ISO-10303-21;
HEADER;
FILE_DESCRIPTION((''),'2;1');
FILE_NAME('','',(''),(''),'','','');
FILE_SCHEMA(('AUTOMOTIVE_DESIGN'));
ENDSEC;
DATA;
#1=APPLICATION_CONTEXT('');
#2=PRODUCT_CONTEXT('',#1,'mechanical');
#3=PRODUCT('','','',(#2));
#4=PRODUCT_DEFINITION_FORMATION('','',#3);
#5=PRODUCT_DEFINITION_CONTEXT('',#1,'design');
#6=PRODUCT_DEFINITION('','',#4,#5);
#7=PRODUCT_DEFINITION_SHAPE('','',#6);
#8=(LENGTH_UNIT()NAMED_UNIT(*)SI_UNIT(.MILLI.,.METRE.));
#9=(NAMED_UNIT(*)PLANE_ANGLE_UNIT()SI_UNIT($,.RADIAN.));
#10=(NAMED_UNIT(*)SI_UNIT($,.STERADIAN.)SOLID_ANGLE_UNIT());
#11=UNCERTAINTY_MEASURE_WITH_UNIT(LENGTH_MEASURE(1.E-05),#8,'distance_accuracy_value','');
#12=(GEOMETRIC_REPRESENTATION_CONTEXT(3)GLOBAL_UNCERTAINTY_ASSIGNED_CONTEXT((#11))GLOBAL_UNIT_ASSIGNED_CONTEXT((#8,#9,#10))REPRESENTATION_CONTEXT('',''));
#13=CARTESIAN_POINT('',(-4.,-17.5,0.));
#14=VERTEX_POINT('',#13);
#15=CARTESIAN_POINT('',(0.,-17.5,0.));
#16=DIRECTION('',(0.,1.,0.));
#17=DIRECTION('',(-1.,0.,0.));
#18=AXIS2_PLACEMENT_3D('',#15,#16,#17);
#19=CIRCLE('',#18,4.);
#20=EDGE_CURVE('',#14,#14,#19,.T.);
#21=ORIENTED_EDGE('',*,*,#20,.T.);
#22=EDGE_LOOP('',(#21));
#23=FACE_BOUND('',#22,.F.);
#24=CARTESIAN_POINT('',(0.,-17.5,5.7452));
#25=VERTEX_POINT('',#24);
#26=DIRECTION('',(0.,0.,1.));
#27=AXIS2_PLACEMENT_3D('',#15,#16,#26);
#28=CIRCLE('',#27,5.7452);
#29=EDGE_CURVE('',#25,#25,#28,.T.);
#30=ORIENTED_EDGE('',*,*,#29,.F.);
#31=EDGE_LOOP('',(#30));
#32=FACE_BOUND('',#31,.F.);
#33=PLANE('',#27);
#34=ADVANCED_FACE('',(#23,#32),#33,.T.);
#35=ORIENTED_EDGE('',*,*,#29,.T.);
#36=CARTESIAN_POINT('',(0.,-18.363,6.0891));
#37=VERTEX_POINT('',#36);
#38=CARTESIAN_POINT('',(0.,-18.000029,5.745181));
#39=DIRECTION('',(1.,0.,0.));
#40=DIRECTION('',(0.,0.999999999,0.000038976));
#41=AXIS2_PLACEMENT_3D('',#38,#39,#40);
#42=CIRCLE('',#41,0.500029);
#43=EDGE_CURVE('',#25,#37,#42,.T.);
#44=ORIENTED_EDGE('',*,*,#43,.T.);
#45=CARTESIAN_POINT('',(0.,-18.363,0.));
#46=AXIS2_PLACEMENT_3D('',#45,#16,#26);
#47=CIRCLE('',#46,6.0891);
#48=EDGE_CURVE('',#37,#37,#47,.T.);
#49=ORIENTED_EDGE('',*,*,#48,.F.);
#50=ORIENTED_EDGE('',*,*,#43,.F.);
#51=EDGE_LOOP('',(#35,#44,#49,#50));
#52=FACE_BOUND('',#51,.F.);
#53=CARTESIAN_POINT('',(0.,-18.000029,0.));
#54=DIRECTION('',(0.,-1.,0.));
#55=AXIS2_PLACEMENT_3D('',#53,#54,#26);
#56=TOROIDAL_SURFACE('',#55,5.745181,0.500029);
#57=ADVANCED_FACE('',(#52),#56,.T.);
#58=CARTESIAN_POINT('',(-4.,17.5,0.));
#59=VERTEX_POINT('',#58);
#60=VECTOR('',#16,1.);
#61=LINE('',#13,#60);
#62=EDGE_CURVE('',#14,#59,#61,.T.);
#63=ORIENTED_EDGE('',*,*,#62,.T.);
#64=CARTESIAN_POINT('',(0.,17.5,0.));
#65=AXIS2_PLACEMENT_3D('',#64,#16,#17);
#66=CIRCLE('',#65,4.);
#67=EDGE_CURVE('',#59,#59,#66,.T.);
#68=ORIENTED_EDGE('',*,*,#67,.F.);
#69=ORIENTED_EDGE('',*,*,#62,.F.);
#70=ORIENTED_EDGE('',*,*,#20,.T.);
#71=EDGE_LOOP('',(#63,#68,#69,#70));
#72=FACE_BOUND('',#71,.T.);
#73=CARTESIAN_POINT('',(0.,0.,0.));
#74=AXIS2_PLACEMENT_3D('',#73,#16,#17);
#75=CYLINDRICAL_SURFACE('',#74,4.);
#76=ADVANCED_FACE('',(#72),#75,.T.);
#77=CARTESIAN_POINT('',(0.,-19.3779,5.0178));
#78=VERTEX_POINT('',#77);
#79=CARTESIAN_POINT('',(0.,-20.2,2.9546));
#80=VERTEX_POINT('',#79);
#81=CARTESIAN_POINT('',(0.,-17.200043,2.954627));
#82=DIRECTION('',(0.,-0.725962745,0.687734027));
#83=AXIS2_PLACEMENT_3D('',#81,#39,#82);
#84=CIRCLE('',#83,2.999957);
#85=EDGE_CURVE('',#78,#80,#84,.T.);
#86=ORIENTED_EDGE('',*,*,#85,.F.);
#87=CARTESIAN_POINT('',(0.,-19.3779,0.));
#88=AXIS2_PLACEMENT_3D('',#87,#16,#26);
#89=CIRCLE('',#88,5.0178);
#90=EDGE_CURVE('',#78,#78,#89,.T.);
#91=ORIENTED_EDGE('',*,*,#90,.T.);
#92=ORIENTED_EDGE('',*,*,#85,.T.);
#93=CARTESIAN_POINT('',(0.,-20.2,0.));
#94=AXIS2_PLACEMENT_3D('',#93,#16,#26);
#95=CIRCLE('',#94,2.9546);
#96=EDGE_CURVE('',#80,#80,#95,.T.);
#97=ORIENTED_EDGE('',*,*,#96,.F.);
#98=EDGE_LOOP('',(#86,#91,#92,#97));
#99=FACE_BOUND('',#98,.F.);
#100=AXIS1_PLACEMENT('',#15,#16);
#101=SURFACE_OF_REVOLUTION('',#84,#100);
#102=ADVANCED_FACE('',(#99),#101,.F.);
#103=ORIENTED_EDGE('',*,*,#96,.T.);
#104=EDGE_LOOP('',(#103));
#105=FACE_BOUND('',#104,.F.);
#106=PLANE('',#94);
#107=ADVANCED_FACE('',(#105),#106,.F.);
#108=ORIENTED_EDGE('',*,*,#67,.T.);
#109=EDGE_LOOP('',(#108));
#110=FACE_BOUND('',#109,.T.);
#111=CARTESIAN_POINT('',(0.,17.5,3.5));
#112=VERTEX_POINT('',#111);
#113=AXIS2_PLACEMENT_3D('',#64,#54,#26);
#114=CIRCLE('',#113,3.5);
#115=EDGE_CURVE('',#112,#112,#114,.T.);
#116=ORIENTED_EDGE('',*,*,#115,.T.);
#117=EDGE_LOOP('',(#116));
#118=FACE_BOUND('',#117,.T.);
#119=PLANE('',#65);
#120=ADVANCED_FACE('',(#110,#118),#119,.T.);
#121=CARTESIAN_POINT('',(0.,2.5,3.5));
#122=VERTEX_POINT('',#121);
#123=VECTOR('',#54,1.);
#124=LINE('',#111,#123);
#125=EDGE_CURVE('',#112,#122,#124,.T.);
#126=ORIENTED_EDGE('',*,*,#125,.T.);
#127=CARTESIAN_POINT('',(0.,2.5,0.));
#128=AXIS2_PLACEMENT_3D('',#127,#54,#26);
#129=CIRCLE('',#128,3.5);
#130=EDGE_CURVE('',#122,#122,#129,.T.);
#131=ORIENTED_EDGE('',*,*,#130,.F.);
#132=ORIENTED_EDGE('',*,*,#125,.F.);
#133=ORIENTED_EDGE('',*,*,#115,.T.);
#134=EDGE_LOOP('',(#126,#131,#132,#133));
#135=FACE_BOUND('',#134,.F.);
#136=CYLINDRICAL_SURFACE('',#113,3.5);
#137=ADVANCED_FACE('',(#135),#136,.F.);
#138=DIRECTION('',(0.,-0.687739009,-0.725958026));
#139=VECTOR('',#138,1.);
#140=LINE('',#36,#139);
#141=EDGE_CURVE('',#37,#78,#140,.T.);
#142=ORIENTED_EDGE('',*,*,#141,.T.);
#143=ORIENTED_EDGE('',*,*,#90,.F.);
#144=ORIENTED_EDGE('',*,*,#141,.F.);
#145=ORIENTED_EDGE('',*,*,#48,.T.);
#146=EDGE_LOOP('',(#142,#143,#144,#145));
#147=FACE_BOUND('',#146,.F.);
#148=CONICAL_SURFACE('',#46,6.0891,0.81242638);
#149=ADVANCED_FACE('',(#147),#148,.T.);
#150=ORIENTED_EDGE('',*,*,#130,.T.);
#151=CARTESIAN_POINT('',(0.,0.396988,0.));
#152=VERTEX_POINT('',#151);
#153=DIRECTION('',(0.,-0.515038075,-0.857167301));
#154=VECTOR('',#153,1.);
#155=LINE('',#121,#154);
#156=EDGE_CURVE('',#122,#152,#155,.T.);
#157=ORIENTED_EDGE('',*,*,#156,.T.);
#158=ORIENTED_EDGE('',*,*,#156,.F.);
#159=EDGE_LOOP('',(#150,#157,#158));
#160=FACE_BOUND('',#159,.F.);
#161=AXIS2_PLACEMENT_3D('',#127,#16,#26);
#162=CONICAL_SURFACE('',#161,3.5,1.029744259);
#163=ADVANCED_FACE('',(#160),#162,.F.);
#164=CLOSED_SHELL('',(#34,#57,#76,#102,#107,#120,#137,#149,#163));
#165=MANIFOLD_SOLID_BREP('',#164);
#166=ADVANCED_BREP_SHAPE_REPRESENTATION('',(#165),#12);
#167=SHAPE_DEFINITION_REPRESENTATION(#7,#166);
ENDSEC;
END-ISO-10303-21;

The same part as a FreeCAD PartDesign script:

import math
import FreeCAD as App
import Part
import Sketcher

V = App.Vector
Q = App.Units.Quantity

doc = App.newDocument("Part")
body = doc.addObject("PartDesign::Body", "Body")

# Sketch on XZ plane
sketch1 = body.newObject("Sketcher::SketchObject", "Sketch")
sketch1.AttachmentSupport = (doc.getObject("XZ_Plane"), [""])
sketch1.MapMode = "FlatFace"
sketch1.addGeometry(Part.Circle(V(0, 0, 0), V(0, 0, 1), 4), False)
sketch1.addConstraint([
    Sketcher.Constraint("Coincident", 0, 3, -1, 1),
    Sketcher.Constraint("Diameter", 0, Q("8 mm")),
])
pad1 = body.newObject("PartDesign::Pad", "Pad")
pad1.Profile = sketch1
pad1.Length = 35
pad1.Midplane = True

# Sketch on YZ plane
sketch2 = body.newObject("Sketcher::SketchObject", "Sketch001")
sketch2.AttachmentSupport = (doc.getObject("YZ_Plane"), [""])
sketch2.MapMode = "FlatFace"
sketch2.addGeometry([
    Part.LineSegment(V(-20.2, 0, 0), V(-17.5, 0, 0)),  # 0
    Part.LineSegment(V(-17.5, 0, 0), V(-17.5, 5.7, 0)),  # 1
    Part.ArcOfCircle(Part.Circle(V(-18, 5.7, 0), V(0, 0, 1), 0.5), math.radians(0), math.radians(137)),  # 2
    Part.LineSegment(V(-18.4, 6.1, 0), V(-19.4, 5, 0)),  # 3
    Part.ArcOfCircle(Part.Circle(V(-17.2, 3, 0), V(0, 0, 1), 3), math.radians(137), math.radians(180)),  # 4
    Part.LineSegment(V(-20.2, 3, 0), V(-20.2, 0, 0)),  # 5
], False)
sketch2.addConstraint([
    Sketcher.Constraint("Coincident", 0, 2, 1, 1),
    Sketcher.Constraint("Tangent", 1, 2, 2, 1),
    Sketcher.Constraint("Tangent", 2, 2, 3, 1),
    Sketcher.Constraint("Tangent", 3, 2, 4, 1),
    Sketcher.Constraint("Tangent", 4, 2, 5, 1),
    Sketcher.Constraint("Coincident", 5, 2, 0, 1),
    Sketcher.Constraint("Horizontal", 0),
    Sketcher.Constraint("Vertical", 1),
    Sketcher.Constraint("Vertical", 5),
    Sketcher.Constraint("PointOnObject", 0, 2, -1),
    Sketcher.Constraint("Radius", 4, Q("3 mm")),
    Sketcher.Constraint("Radius", 2, Q("0.5 mm")),
    Sketcher.Constraint("DistanceX", 0, 1, 0, 2, Q("2.7 mm")),
    Sketcher.Constraint("DistanceX", 2, 3, -1, 1, Q("18 mm")),
    Sketcher.Constraint("DistanceY", 1, 1, 1, 2, Q("5.7452 mm")),
    Sketcher.Constraint("DistanceY", 5, 2, 5, 1, Q("2.9546 mm")),
])
revolution = body.newObject("PartDesign::Revolution", "Revolution")
revolution.Profile = sketch2
revolution.ReferenceAxis = (sketch2, ["H_Axis"])
revolution.Angle = 360

# Sketch on XZ plane
sketch3 = body.newObject("Sketcher::SketchObject", "Sketch002")
sketch3.AttachmentSupport = (doc.getObject("XZ_Plane"), [""])
sketch3.MapMode = "FlatFace"
sketch3.AttachmentOffset = App.Placement(V(0, 0, -17.5), App.Rotation())
sketch3.addGeometry(Part.Circle(V(0, 0, 0), V(0, 0, 1), 3.5), False)
sketch3.addConstraint([
    Sketcher.Constraint("Coincident", 0, 3, -1, 1),
    Sketcher.Constraint("Diameter", 0, Q("7 mm")),
])
doc.recompute()
hole = body.newObject("PartDesign::Hole", "Hole")
hole.Profile = sketch3
hole.ThreadType = "None"
hole.Diameter = 7
hole.DepthType = "Dimension"
hole.Depth = 15
hole.DrillPoint = "Angled"
hole.DrillPointAngle = 118
hole.Reversed = True

doc.recompute()
